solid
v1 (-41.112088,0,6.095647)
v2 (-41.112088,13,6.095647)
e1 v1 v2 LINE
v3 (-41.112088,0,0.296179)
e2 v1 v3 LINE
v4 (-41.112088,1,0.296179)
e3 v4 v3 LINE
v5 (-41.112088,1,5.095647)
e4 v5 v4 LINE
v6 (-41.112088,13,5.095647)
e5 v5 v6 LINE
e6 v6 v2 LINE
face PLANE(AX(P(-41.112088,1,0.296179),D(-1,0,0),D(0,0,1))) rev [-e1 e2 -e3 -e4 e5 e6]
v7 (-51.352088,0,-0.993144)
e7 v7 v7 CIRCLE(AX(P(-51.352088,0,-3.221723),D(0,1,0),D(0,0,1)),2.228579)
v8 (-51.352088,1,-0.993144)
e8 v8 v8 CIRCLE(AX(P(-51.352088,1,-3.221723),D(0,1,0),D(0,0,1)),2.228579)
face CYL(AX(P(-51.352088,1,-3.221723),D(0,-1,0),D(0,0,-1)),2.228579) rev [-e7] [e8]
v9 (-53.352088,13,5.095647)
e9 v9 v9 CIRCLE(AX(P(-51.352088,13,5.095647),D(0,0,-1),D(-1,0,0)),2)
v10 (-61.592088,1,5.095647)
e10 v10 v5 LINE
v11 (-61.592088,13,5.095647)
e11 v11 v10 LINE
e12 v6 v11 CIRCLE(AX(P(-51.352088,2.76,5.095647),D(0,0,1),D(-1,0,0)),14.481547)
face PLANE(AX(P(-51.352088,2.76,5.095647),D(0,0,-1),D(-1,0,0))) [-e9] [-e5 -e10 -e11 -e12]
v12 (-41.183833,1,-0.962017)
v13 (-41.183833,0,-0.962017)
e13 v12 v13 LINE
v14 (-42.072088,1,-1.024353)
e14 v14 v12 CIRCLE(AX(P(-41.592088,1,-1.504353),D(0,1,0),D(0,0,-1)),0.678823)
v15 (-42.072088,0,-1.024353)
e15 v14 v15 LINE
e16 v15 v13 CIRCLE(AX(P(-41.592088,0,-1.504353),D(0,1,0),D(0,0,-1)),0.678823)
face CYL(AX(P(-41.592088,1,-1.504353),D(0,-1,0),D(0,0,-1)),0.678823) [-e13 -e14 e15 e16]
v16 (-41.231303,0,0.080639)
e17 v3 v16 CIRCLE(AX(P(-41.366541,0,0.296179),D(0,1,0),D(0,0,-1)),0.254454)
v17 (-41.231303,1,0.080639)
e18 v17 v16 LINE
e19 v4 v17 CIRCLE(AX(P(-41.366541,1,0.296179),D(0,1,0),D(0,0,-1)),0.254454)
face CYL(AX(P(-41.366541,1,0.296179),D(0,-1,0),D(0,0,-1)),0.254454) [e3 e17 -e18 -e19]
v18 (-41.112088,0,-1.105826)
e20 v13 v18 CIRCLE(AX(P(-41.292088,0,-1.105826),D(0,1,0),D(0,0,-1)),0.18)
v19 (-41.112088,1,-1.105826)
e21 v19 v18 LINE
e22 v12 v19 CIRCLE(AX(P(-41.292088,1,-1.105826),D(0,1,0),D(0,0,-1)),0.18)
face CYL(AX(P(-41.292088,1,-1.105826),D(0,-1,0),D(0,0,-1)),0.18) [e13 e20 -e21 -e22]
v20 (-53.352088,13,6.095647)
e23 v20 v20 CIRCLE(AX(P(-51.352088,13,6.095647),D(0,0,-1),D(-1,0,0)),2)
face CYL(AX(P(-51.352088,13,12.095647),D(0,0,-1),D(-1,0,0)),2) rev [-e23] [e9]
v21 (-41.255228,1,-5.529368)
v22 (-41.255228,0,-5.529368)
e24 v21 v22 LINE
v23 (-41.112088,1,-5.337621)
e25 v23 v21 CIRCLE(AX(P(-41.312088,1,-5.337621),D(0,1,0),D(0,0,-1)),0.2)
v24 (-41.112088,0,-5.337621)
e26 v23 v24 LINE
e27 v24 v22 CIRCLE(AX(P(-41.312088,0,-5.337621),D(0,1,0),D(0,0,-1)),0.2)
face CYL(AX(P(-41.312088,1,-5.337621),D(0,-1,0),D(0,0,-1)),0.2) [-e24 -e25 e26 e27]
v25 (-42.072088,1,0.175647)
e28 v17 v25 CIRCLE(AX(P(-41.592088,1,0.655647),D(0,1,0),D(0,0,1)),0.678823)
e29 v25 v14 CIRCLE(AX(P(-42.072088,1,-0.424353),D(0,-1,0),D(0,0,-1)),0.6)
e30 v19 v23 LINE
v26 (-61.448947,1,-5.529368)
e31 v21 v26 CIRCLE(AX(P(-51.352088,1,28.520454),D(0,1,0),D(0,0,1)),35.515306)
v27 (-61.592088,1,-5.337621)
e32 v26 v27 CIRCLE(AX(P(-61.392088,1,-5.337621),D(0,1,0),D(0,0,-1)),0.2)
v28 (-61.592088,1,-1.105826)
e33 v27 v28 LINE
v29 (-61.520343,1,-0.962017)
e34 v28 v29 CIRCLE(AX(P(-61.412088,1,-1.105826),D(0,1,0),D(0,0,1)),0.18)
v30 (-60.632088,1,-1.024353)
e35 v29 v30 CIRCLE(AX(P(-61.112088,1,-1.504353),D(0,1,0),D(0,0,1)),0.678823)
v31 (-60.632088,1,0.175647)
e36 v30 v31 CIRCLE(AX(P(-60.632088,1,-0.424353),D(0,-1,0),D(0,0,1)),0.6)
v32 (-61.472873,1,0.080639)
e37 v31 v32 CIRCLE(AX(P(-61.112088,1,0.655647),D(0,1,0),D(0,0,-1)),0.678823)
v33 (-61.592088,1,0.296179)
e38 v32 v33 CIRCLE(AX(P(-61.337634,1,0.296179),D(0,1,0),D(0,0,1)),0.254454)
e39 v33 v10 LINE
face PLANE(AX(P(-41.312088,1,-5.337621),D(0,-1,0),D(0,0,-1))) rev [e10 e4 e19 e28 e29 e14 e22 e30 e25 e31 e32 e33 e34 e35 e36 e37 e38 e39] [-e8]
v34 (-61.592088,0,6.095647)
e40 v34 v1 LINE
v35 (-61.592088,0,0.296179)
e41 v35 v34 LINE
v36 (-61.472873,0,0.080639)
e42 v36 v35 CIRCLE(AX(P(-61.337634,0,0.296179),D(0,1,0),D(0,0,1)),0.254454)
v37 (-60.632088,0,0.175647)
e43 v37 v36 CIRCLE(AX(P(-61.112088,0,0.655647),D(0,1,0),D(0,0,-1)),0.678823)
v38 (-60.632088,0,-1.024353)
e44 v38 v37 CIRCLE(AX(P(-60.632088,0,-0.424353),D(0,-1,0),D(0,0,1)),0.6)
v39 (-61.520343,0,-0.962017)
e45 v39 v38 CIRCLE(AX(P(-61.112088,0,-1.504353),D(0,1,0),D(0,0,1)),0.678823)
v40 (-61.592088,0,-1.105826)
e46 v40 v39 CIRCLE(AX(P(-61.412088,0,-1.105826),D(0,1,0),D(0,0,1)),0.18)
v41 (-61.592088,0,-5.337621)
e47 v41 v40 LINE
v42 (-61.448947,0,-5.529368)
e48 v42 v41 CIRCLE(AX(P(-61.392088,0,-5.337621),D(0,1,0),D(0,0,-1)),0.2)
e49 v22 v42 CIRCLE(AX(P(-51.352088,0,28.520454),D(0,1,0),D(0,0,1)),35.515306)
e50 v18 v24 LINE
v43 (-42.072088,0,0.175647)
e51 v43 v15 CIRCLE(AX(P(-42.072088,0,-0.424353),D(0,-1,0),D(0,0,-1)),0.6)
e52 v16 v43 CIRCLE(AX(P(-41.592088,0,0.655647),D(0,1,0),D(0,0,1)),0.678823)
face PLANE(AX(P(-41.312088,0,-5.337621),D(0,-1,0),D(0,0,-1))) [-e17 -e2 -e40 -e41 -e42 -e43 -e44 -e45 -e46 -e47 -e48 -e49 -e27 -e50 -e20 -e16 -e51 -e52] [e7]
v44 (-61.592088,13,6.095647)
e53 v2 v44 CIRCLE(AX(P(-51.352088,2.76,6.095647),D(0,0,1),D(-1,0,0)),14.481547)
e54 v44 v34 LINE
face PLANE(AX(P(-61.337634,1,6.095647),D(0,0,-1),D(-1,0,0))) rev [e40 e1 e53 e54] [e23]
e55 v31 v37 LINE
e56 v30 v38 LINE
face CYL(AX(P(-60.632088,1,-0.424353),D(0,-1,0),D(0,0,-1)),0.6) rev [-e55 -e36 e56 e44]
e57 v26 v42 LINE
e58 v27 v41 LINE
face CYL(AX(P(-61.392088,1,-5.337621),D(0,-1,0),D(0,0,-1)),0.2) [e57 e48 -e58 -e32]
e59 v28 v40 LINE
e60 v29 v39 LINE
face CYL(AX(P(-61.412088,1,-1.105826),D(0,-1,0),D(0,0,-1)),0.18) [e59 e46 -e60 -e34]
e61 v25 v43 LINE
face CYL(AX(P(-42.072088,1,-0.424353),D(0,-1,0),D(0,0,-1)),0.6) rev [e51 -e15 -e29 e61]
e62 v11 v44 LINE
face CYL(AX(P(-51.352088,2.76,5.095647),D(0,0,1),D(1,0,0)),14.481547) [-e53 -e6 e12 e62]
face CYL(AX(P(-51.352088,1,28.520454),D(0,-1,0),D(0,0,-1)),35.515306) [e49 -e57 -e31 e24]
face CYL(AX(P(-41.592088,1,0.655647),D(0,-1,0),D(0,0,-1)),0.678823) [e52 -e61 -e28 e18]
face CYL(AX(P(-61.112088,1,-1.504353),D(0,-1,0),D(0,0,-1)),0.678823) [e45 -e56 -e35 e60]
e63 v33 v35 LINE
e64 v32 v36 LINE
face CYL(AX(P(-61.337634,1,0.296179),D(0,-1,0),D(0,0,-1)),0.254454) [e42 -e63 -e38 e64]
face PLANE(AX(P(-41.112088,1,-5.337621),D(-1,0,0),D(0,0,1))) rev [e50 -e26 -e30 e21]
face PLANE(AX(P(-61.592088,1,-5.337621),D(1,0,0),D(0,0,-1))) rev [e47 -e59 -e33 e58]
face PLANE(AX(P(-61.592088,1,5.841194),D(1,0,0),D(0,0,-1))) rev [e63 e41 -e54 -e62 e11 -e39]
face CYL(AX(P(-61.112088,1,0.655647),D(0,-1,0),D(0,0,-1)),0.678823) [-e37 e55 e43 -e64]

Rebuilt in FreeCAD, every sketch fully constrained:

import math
import FreeCAD as App
import Part
import Sketcher
from FreeCAD import Vector

doc = App.newDocument("Part")
body = doc.addObject("PartDesign::Body", "Body")

# Sketch on XZ plane
sketch1 = doc.addObject("Sketcher::SketchObject", "Sketch")
body.addObject(sketch1)
sketch1.AttachmentSupport = (doc.XZ_Plane, [""])
sketch1.MapMode = "FlatFace"
sketch1.addGeometry([
    Part.LineSegment(Vector(-41.112088, -1.105826, 0), Vector(-41.112088, -5.337621, 0)),  # 0
    Part.ArcOfCircle(Part.Circle(Vector(-41.312088, -5.337621, 0), Vector(0, 0, 1), 0.2), math.radians(-73.483229), math.radians(0)),  # 1
    Part.ArcOfCircle(Part.Circle(Vector(-51.352088, 28.520454, 0), Vector(0, 0, 1), 35.515306), math.radians(-106.516771), math.radians(-73.483229)),  # 2
    Part.ArcOfCircle(Part.Circle(Vector(-61.392088, -5.337621, 0), Vector(0, 0, 1), 0.2), math.radians(-179.999999), math.radians(-106.516772)),  # 3
    Part.LineSegment(Vector(-61.592088, -5.337621, 0), Vector(-61.592088, -1.105826, 0)),  # 4
    Part.ArcOfCircle(Part.Circle(Vector(-61.412088, -1.105826, 0), Vector(0, 0, 1), 0.18), math.radians(126.971402), math.radians(180)),  # 5
    Part.ArcOfCircle(Part.Circle(Vector(-61.112088, -1.504353, 0), Vector(0, 0, 1), 0.678823), math.radians(45), math.radians(126.971402)),  # 6
    Part.ArcOfCircle(Part.Circle(Vector(-60.632088, -0.424353, 0), Vector(0, 0, 1), 0.6), math.radians(-90), math.radians(90)),  # 7
    Part.ArcOfCircle(Part.Circle(Vector(-61.112088, 0.655647, 0), Vector(0, 0, 1), 0.678823), math.radians(-122.105949), math.radians(-45)),  # 8
    Part.ArcOfCircle(Part.Circle(Vector(-61.337634, 0.296179, 0), Vector(0, 0, 1), 0.254454), math.radians(180), math.radians(237.894051)),  # 9
    Part.LineSegment(Vector(-61.592088, 0.296179, 0), Vector(-61.592088, 5.841194, 0)),  # 10
    Part.ArcOfCircle(Part.Circle(Vector(-61.337634, 5.841194, 0), Vector(0, 0, 1), 0.254454), math.radians(90), math.radians(180)),  # 11
    Part.LineSegment(Vector(-61.337634, 6.095647, 0), Vector(-41.366541, 6.095647, 0)),  # 12
    Part.ArcOfCircle(Part.Circle(Vector(-41.366541, 5.841194, 0), Vector(0, 0, 1), 0.254454), math.radians(0), math.radians(90)),  # 13
    Part.LineSegment(Vector(-41.112088, 5.841194, 0), Vector(-41.112088, 0.296179, 0)),  # 14
    Part.ArcOfCircle(Part.Circle(Vector(-41.366541, 0.296179, 0), Vector(0, 0, 1), 0.254454), math.radians(-57.894051), math.radians(0)),  # 15
    Part.ArcOfCircle(Part.Circle(Vector(-41.592088, 0.655647, 0), Vector(0, 0, 1), 0.678823), math.radians(-135), math.radians(-57.894051)),  # 16
    Part.ArcOfCircle(Part.Circle(Vector(-42.072088, -0.424353, 0), Vector(0, 0, 1), 0.6), math.radians(90), math.radians(270)),  # 17
    Part.ArcOfCircle(Part.Circle(Vector(-41.592088, -1.504353, 0), Vector(0, 0, 1), 0.678823), math.radians(53.028598), math.radians(135)),  # 18
    Part.ArcOfCircle(Part.Circle(Vector(-41.292088, -1.105826, 0), Vector(0, 0, 1), 0.18), math.radians(0), math.radians(53.028598)),  # 19
    Part.Circle(Vector(-51.352088, -3.221723, 0), Vector(0, 0, 1), 2.228579),  # 20
], False)
sketch1.addConstraint([
    Sketcher.Constraint("Tangent", 0, 2, 1, 2),
    Sketcher.Constraint("Tangent", 1, 1, 2, 2),
    Sketcher.Constraint("Tangent", 2, 1, 3, 2),
    Sketcher.Constraint("Tangent", 3, 1, 4, 1),
    Sketcher.Constraint("Tangent", 4, 2, 5, 2),
    Sketcher.Constraint("Tangent", 5, 1, 6, 2),
    Sketcher.Constraint("Coincident", 6, 1, 7, 1),
    Sketcher.Constraint("Coincident", 7, 2, 8, 2),
    Sketcher.Constraint("Tangent", 8, 1, 9, 2),
    Sketcher.Constraint("Tangent", 9, 1, 10, 1),
    Sketcher.Constraint("Tangent", 10, 2, 11, 2),
    Sketcher.Constraint("Tangent", 11, 1, 12, 1),
    Sketcher.Constraint("Tangent", 12, 2, 13, 2),
    Sketcher.Constraint("Tangent", 13, 1, 14, 1),
    Sketcher.Constraint("Tangent", 14, 2, 15, 2),
    Sketcher.Constraint("Tangent", 15, 1, 16, 2),
    Sketcher.Constraint("Coincident", 16, 1, 17, 1),
    Sketcher.Constraint("Coincident", 17, 2, 18, 2),
    Sketcher.Constraint("Tangent", 18, 1, 19, 2),
    Sketcher.Constraint("Tangent", 19, 1, 0, 1),
    Sketcher.Constraint("Vertical", 0),
    Sketcher.Constraint("Vertical", 4),
    Sketcher.Constraint("Vertical", 10),
    Sketcher.Constraint("Horizontal", 12),
    Sketcher.Constraint("Vertical", 14),
    Sketcher.Constraint("Equal", 1, 3),
    Sketcher.Constraint("Equal", 6, 8),
    Sketcher.Constraint("Equal", 9, 11),
    Sketcher.Constraint("Equal", 11, 13),
    Sketcher.Constraint("Equal", 13, 15),
    Sketcher.Constraint("Equal", 8, 16),
    Sketcher.Constraint("Equal", 7, 17),
    Sketcher.Constraint("Equal", 16, 18),
    Sketcher.Constraint("Equal", 5, 19),
    Sketcher.Constraint("Horizontal", 1, 3, 3, 3),
    Sketcher.Constraint("Horizontal", 9, 3, 15, 3),
    Sketcher.Constraint("Horizontal", 8, 3, 16, 3),
    Sketcher.Constraint("Horizontal", 7, 3, 17, 3),
    Sketcher.Constraint("Horizontal", 6, 3, 18, 3),
    Sketcher.Constraint("Horizontal", 5, 3, 19, 3),
    Sketcher.Constraint("Vertical", 6, 3, 8, 3),
    Sketcher.Constraint("Vertical", 16, 3, 18, 3),
    Sketcher.Constraint("Vertical", 2, 3, 20, 3),
    Sketcher.Constraint("Vertical", 7, 3, 6, 1),
    Sketcher.Constraint("Vertical", 6, 1, 7, 2),
    Sketcher.Constraint("Vertical", 4, 2, 9, 1),
    Sketcher.Constraint("Vertical", 17, 3, 16, 1),
    Sketcher.Constraint("Radius", 1, 0.2),
    Sketcher.Constraint("Radius", 7, 0.6),
    Sketcher.Constraint("Radius", 5, 0.18),
    Sketcher.Constraint("DistanceX", 5, 3, 1, 3, 20.1),
    Sketcher.Constraint("DistanceX", 5, 3, 6, 3, 0.3),
    Sketcher.Constraint("DistanceX", 5, 3, 7, 3, 0.78),
    Sketcher.Constraint("DistanceY", 6, 3, 7, 3, 1.08),
    Sketcher.Constraint("DistanceY", 8, 3, 11, 1, 5.44),
    Sketcher.Constraint("Diameter", 20, 4.457158),
    Sketcher.Constraint("Radius", 2, 35.515306),
    Sketcher.Constraint("Radius", 9, 0.254454),
    Sketcher.Constraint("DistanceY", 3, 3, 9, 3, 5.633799),
    Sketcher.Constraint("DistanceY", 1, 3, -1, 1, 5.337621),
    Sketcher.Constraint("DistanceX", 13, 3, -1, 1, 41.366541),
    Sketcher.Constraint("DistanceY", 20, 3, 7, 3, 2.79737),
])
pad1 = doc.addObject("PartDesign::Pad", "Pad")
body.addObject(pad1)
pad1.Profile = sketch1
pad1.Length = 1
pad1.Reversed = True

# Sketch on XY plane
sketch2 = doc.addObject("Sketcher::SketchObject", "Sketch001")
body.addObject(sketch2)
sketch2.AttachmentSupport = (doc.XY_Plane, [""])
sketch2.MapMode = "FlatFace"
sketch2.AttachmentOffset = App.Placement(Vector(0, 0, 6.095647), App.Rotation())
sketch2.addGeometry([
    Part.LineSegment(Vector(-61.592088, 13, 0), Vector(-61.592088, 0, 0)),
    Part.LineSegment(Vector(-61.592088, 0, 0), Vector(-41.112088, 0, 0)),
    Part.LineSegment(Vector(-41.112088, 0, 0), Vector(-41.112088, 13, 0)),
    Part.ArcOfCircle(Part.Circle(Vector(-51.352088, 2.76, 0), Vector(0, 0, 1), 14.481547), math.radians(45), math.radians(135)),
], False)
sketch2.addConstraint([
    Sketcher.Constraint("Coincident", 0, 2, 1, 1),
    Sketcher.Constraint("Coincident", 1, 2, 2, 1),
    Sketcher.Constraint("Coincident", 2, 2, 3, 1),
    Sketcher.Constraint("Coincident", 3, 2, 0, 1),
    Sketcher.Constraint("Vertical", 0),
    Sketcher.Constraint("Horizontal", 1),
    Sketcher.Constraint("Vertical", 2),
    Sketcher.Constraint("PointOnObject", 0, 2, -1),
    Sketcher.Constraint("Horizontal", 2, 2, 3, 2),
    Sketcher.Constraint("DistanceY", 0, 2, 0, 1, 13.0),
    Sketcher.Constraint("DistanceX", 1, 1, 1, 2, 20.48),
    Sketcher.Constraint("DistanceY", -1, 1, 3, 3, 2.76),
    Sketcher.Constraint("DistanceX", 3, 3, -1, 1, 51.352088),
])
pad2 = doc.addObject("PartDesign::Pad", "Pad001")
body.addObject(pad2)
pad2.Profile = sketch2
pad2.Length = 1
pad2.Reversed = True

# Sketch on XY plane
sketch3 = doc.addObject("Sketcher::SketchObject", "Sketch002")
body.addObject(sketch3)
sketch3.AttachmentSupport = (doc.XY_Plane, [""])
sketch3.MapMode = "FlatFace"
sketch3.AttachmentOffset = App.Placement(Vector(0, 0, 5.095647), App.Rotation())
sketch3.addGeometry(Part.Circle(Vector(-51.352088, 13, 0), Vector(0, 0, 1), 2), False)
sketch3.addConstraint([
    Sketcher.Constraint("Diameter", 0, 4.0),
    Sketcher.Constraint("DistanceY", -1, 1, 0, 3, 13.0),
    Sketcher.Constraint("DistanceX", 0, 3, -1, 1, 51.352088),
])
pocket1 = doc.addObject("PartDesign::Pocket", "Pocket")
body.addObject(pocket1)
pocket1.Profile = sketch3
pocket1.Length = 7
pocket1.Reversed = True

doc.recompute()
